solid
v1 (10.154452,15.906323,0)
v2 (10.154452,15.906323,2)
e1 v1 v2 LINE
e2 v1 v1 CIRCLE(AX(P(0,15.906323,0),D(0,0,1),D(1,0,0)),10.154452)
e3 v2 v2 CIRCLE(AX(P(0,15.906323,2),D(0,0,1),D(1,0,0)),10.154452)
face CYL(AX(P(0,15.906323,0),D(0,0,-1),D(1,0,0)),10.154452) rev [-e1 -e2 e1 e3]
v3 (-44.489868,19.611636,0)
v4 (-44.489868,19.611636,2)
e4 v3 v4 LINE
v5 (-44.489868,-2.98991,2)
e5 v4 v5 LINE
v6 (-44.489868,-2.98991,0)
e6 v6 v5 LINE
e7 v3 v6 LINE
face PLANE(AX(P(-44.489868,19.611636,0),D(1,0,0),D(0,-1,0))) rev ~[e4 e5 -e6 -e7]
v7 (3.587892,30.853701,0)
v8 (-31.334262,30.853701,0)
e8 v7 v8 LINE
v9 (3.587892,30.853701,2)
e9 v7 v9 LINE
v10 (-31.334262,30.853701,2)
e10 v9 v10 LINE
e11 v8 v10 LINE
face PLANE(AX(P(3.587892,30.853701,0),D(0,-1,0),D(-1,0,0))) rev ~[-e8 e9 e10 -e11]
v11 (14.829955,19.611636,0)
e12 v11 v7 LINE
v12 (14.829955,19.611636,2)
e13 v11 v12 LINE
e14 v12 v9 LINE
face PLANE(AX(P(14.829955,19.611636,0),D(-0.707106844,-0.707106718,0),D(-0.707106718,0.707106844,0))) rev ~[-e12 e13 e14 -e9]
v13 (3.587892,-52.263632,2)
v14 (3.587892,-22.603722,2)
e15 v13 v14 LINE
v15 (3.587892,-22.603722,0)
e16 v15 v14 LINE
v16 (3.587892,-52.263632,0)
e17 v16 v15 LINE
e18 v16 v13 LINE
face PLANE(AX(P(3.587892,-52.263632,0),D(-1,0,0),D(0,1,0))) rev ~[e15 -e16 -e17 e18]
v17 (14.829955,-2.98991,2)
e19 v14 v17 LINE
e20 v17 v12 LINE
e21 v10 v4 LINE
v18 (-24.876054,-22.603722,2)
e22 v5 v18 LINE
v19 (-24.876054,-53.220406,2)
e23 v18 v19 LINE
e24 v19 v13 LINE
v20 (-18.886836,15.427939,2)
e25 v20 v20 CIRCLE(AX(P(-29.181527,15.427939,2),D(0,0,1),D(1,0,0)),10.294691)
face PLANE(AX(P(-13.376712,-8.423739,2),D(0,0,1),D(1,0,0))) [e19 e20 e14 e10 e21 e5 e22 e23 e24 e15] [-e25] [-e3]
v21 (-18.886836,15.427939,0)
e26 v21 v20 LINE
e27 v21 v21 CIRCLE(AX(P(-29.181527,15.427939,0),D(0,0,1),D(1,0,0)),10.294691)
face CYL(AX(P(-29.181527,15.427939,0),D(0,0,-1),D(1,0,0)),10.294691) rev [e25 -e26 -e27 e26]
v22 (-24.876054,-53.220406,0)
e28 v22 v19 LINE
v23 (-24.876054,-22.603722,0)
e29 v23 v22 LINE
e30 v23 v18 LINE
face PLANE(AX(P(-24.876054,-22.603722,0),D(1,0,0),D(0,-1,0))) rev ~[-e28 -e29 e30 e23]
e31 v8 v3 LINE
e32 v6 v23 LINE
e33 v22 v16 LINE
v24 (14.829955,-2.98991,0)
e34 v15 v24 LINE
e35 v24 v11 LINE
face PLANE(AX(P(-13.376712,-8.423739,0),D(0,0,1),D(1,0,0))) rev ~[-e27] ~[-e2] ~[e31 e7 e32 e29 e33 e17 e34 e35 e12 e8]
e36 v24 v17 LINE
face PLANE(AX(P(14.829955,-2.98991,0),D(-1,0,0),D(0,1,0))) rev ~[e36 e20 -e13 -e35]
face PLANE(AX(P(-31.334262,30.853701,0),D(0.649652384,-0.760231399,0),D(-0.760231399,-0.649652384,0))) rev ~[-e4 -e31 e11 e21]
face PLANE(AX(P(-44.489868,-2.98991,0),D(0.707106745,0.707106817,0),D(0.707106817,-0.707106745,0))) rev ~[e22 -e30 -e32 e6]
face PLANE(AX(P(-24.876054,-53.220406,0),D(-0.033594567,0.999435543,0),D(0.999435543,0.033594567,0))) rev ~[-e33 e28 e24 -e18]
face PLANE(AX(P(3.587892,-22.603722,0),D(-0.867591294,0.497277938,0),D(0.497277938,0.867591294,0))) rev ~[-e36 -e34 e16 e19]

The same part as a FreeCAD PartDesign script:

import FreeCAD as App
import Part
import Sketcher

V = App.Vector
Q = App.Units.Quantity

doc = App.newDocument("Part")
body = doc.addObject("PartDesign::Body", "Body")

# Sketch on XY plane
sketch1 = body.newObject("Sketcher::SketchObject", "Sketch")
sketch1.AttachmentSupport = (doc.getObject("XY_Plane"), [""])
sketch1.MapMode = "FlatFace"
sketch1.addGeometry([
    Part.LineSegment(V(-24.876054, -22.603722, 0), V(-24.876054, -53.220406, 0)),  # 0
    Part.LineSegment(V(-24.876054, -53.220406, 0), V(3.587892, -52.263632, 0)),  # 1
    Part.LineSegment(V(3.587892, -52.263632, 0), V(3.587892, -22.603722, 0)),  # 2
    Part.LineSegment(V(3.587892, -22.603722, 0), V(14.829955, -2.98991, 0)),  # 3
    Part.LineSegment(V(14.829955, -2.98991, 0), V(14.829955, 19.611636, 0)),  # 4
    Part.LineSegment(V(14.829955, 19.611636, 0), V(3.587892, 30.853701, 0)),  # 5
    Part.LineSegment(V(3.587892, 30.853701, 0), V(-31.334262, 30.853701, 0)),  # 6
    Part.LineSegment(V(-31.334262, 30.853701, 0), V(-44.489868, 19.611636, 0)),  # 7
    Part.LineSegment(V(-44.489868, 19.611636, 0), V(-44.489868, -2.98991, 0)),  # 8
    Part.LineSegment(V(-44.489868, -2.98991, 0), V(-24.876054, -22.603722, 0)),  # 9
    Part.Circle(V(-29.181527, 15.427939, 0), V(0, 0, 1), 10.294691),  # 10
    Part.Circle(V(0, 15.906323, 0), V(0, 0, 1), 10.154452),  # 11
], False)
sketch1.addConstraint([
    Sketcher.Constraint("Coincident", 0, 2, 1, 1),
    Sketcher.Constraint("Coincident", 1, 2, 2, 1),
    Sketcher.Constraint("Coincident", 2, 2, 3, 1),
    Sketcher.Constraint("Coincident", 3, 2, 4, 1),
    Sketcher.Constraint("Coincident", 4, 2, 5, 1),
    Sketcher.Constraint("Coincident", 5, 2, 6, 1),
    Sketcher.Constraint("Coincident", 6, 2, 7, 1),
    Sketcher.Constraint("Coincident", 7, 2, 8, 1),
    Sketcher.Constraint("Coincident", 8, 2, 9, 1),
    Sketcher.Constraint("Coincident", 9, 2, 0, 1),
    Sketcher.Constraint("Vertical", 0),
    Sketcher.Constraint("Vertical", 2),
    Sketcher.Constraint("Vertical", 4),
    Sketcher.Constraint("Horizontal", 6),
    Sketcher.Constraint("Vertical", 8),
    Sketcher.Constraint("PointOnObject", 11, 3, -2),
    Sketcher.Constraint("Diameter", 10, Q("20.589382 mm")),
    Sketcher.Constraint("Diameter", 11, Q("20.308904 mm")),
    Sketcher.Constraint("DistanceY", 2, 1, 2, 2, Q("29.65991 mm")),
    Sketcher.Constraint("DistanceY", -1, 1, 5, 2, Q("30.853701 mm")),
    Sketcher.Constraint("Distance", 1, Q("28.480022 mm")),
    Sketcher.Constraint("Distance", 5, Q("15.898679 mm")),
    Sketcher.Constraint("Distance", 7, Q("17.304739 mm")),
    Sketcher.Constraint("Distance", 9, Q("27.73812 mm")),
    Sketcher.Constraint("DistanceX", 6, 2, 6, 1, Q("34.922154 mm")),
    Sketcher.Constraint("DistanceY", 0, 2, 0, 1, Q("30.616684 mm")),
    Sketcher.Constraint("DistanceY", 4, 1, 4, 2, Q("22.601546 mm")),
    Sketcher.Constraint("DistanceY", 8, 2, 8, 1, Q("22.601546 mm")),
    Sketcher.Constraint("DistanceY", -1, 1, 10, 3, Q("15.427939 mm")),
    Sketcher.Constraint("DistanceY", 3, 2, -1, 1, Q("2.98991 mm")),
    Sketcher.Constraint("DistanceX", 6, 2, -1, 1, Q("31.334262 mm")),
    Sketcher.Constraint("DistanceY", 8, 2, -1, 1, Q("2.98991 mm")),
    Sketcher.Constraint("DistanceY", 0, 2, 11, 3, Q("69.126729 mm")),
    Sketcher.Constraint("DistanceX", 10, 3, 1, 2, Q("32.769419 mm")),
    Sketcher.Constraint("DistanceY", 1, 2, 10, 3, Q("67.691571 mm")),
    Sketcher.Constraint("DistanceX", 0, 2, 3, 2, Q("39.706009 mm")),
])
pad1 = body.newObject("PartDesign::Pad", "Pad")
pad1.Profile = sketch1
pad1.Length = 2

doc.recompute()
